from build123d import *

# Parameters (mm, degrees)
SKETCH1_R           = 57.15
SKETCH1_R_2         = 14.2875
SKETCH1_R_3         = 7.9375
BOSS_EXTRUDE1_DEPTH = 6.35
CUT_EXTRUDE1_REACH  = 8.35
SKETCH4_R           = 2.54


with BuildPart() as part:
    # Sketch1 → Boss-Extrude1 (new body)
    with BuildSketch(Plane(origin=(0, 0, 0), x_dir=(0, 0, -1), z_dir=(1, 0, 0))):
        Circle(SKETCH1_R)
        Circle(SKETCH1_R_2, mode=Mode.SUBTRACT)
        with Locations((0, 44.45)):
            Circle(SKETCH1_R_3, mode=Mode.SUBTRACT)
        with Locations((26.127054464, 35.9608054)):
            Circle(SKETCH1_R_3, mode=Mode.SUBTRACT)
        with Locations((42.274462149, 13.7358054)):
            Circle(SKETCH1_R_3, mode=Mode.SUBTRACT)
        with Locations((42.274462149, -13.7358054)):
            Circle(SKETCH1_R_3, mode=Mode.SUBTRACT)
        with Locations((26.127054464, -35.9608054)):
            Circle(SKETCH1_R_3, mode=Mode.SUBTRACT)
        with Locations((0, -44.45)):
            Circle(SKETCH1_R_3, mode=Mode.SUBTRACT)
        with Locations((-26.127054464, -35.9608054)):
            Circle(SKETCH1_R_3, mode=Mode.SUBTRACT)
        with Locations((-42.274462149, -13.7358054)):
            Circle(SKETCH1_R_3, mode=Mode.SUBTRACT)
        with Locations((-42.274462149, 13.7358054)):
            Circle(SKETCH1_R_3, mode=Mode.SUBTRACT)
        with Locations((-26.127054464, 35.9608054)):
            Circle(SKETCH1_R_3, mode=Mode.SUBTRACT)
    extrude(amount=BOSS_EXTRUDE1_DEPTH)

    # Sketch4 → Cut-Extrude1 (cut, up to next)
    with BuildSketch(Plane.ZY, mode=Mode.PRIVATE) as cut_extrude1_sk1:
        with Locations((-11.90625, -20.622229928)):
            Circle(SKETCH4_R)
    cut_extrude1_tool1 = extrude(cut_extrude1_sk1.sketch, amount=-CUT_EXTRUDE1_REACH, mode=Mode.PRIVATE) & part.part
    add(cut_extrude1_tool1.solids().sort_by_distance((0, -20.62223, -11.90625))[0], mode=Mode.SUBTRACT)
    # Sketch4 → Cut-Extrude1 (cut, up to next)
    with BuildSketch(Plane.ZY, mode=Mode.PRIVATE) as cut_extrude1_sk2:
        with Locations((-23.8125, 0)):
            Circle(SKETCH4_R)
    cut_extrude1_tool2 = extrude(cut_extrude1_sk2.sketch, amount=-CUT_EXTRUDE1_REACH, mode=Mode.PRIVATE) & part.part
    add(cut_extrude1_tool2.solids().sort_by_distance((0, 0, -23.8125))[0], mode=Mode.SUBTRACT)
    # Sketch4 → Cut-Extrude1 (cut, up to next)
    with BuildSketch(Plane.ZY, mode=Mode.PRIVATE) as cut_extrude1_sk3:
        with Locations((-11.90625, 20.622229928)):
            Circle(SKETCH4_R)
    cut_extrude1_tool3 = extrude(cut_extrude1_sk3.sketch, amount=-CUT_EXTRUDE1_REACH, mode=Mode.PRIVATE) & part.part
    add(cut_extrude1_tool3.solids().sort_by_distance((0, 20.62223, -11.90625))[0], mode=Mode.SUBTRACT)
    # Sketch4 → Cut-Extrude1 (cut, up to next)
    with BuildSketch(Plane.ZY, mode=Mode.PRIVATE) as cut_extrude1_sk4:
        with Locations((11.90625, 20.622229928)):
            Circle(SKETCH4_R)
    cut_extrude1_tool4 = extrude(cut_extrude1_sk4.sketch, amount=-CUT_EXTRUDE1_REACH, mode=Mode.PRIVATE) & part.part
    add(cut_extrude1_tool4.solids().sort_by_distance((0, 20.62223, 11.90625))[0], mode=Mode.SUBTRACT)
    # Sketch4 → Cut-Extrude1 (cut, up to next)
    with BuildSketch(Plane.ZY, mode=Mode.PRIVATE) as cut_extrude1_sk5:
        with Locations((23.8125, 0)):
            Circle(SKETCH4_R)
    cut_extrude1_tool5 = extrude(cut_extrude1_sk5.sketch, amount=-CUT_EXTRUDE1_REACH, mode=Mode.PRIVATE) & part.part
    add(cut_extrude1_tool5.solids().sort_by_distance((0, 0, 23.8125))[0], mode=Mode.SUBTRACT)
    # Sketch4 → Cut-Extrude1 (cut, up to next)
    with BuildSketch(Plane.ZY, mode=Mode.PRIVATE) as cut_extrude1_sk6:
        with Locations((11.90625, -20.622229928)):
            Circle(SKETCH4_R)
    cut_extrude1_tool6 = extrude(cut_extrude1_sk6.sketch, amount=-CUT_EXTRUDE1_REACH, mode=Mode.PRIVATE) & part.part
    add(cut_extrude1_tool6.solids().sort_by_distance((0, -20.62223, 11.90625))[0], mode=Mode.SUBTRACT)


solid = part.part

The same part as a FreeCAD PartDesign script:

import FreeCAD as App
import Part
import Sketcher

V = App.Vector
Q = App.Units.Quantity

doc = App.newDocument("Part")
body = doc.addObject("PartDesign::Body", "Body")

# Sketch on YZ plane
sketch1 = body.newObject("Sketcher::SketchObject", "Sketch")
sketch1.AttachmentSupport = (doc.getObject("YZ_Plane"), [""])
sketch1.MapMode = "FlatFace"
sketch1.addGeometry([
    Part.Circle(V(0, 0, 0), V(0, 0, 1), 57.15),  # 0
    Part.Circle(V(-35.960805, 26.127054, 0), V(0, 0, 1), 7.9375),  # 1
    Part.Circle(V(-13.735805, 42.274462, 0), V(0, 0, 1), 7.9375),  # 2
    Part.Circle(V(-44.45, 0, 0), V(0, 0, 1), 7.9375),  # 3
    Part.Circle(V(-35.960805, -26.127054, 0), V(0, 0, 1), 7.9375),  # 4
    Part.Circle(V(-13.735805, -42.274462, 0), V(0, 0, 1), 7.9375),  # 5
    Part.Circle(V(13.735805, 42.274462, 0), V(0, 0, 1), 7.9375),  # 6
    Part.Circle(V(35.960805, 26.127054, 0), V(0, 0, 1), 7.9375),  # 7
    Part.Circle(V(0, 0, 0), V(0, 0, 1), 14.2875),  # 8
    Part.Circle(V(13.735805, -42.274462, 0), V(0, 0, 1), 7.9375),  # 9
    Part.Circle(V(44.45, 0, 0), V(0, 0, 1), 7.9375),  # 10
    Part.Circle(V(35.960805, -26.127054, 0), V(0, 0, 1), 7.9375),  # 11
], False)
sketch1.addConstraint([
    Sketcher.Constraint("Coincident", 0, 3, -1, 1),
    Sketcher.Constraint("Coincident", 8, 3, -1, 1),
    Sketcher.Constraint("Equal", 1, 2),
    Sketcher.Constraint("Equal", 2, 3),
    Sketcher.Constraint("Equal", 3, 4),
    Sketcher.Constraint("Equal", 4, 5),
    Sketcher.Constraint("Equal", 5, 6),
    Sketcher.Constraint("Equal", 6, 7),
    Sketcher.Constraint("Equal", 7, 9),
    Sketcher.Constraint("Equal", 9, 10),
    Sketcher.Constraint("Equal", 10, 11),
    Sketcher.Constraint("Symmetric", 5, 3, 6, 3, -1, 1),
    Sketcher.Constraint("Symmetric", 4, 3, 7, 3, -1, 1),
    Sketcher.Constraint("Symmetric", 2, 3, 9, 3, -1, 1),
    Sketcher.Constraint("Symmetric", 3, 3, 10, 3, -1, 1),
    Sketcher.Constraint("Symmetric", 1, 3, 11, 3, -1, 1),
    Sketcher.Constraint("Symmetric", 2, 3, 6, 3, -2),
    Sketcher.Constraint("Symmetric", 1, 3, 7, 3, -2),
    Sketcher.Constraint("PointOnObject", 3, 3, -1),
    Sketcher.Constraint("Diameter", 0, Q("4.5 in")),
    Sketcher.Constraint("Diameter", 1, Q("0.625 in")),
    Sketcher.Constraint("Diameter", 8, Q("1.125 in")),
    Sketcher.Constraint("DistanceX", 3, 3, -1, 1, Q("1.75 in")),
    Sketcher.Constraint("DistanceX", 1, 3, 2, 3, Q("0.875 in")),
    Sketcher.Constraint("DistanceY", 4, 3, 1, 3, Q("52.254109 mm")),
    Sketcher.Constraint("DistanceX", 2, 3, 6, 3, Q("27.471611 mm")),
    Sketcher.Constraint("DistanceY", -1, 1, 2, 3, Q("42.274462 mm")),
])
pad1 = body.newObject("PartDesign::Pad", "Pad")
pad1.Profile = sketch1
pad1.Length = Q("0.25 in")

# Sketch on YZ plane
sketch2 = body.newObject("Sketcher::SketchObject", "Sketch001")
sketch2.AttachmentSupport = (doc.getObject("YZ_Plane"), [""])
sketch2.MapMode = "FlatFace"
sketch2.addGeometry(Part.Circle(V(-20.62223, -11.90625, 0), V(0, 0, 1), 2.54), False)
sketch2.addConstraint([
    Sketcher.Constraint("Diameter", 0, Q("0.2 in")),
    Sketcher.Constraint("DistanceY", 0, 3, -1, 1, Q("0.46875 in")),
    Sketcher.Constraint("DistanceX", 0, 3, -1, 1, Q("20.62223 mm")),
])
pocket1 = body.newObject("PartDesign::Pocket", "Pocket")
pocket1.Profile = sketch2
pocket1.Type = "UpToFirst"
pocket1.Reversed = True

# Sketch on YZ plane
sketch3 = body.newObject("Sketcher::SketchObject", "Sketch002")
sketch3.AttachmentSupport = (doc.getObject("YZ_Plane"), [""])
sketch3.MapMode = "FlatFace"
sketch3.addGeometry(Part.Circle(V(0, -23.8125, 0), V(0, 0, 1), 2.54), False)
sketch3.addConstraint([
    Sketcher.Constraint("PointOnObject", 0, 3, -2),
    Sketcher.Constraint("Diameter", 0, Q("0.2 in")),
    Sketcher.Constraint("DistanceY", 0, 3, -1, 1, Q("0.9375 in")),
])
pocket2 = body.newObject("PartDesign::Pocket", "Pocket001")
pocket2.Profile = sketch3
pocket2.Type = "UpToFirst"
pocket2.Reversed = True

# Sketch on YZ plane
sketch4 = body.newObject("Sketcher::SketchObject", "Sketch003")
sketch4.AttachmentSupport = (doc.getObject("YZ_Plane"), [""])
sketch4.MapMode = "FlatFace"
sketch4.addGeometry(Part.Circle(V(20.62223, -11.90625, 0), V(0, 0, 1), 2.54), False)
sketch4.addConstraint([
    Sketcher.Constraint("Diameter", 0, Q("0.2 in")),
    Sketcher.Constraint("DistanceY", 0, 3, -1, 1, Q("0.46875 in")),
    Sketcher.Constraint("DistanceX", -1, 1, 0, 3, Q("20.62223 mm")),
])
pocket3 = body.newObject("PartDesign::Pocket", "Pocket002")
pocket3.Profile = sketch4
pocket3.Type = "UpToFirst"
pocket3.Reversed = True

# Sketch on YZ plane
sketch5 = body.newObject("Sketcher::SketchObject", "Sketch004")
sketch5.AttachmentSupport = (doc.getObject("YZ_Plane"), [""])
sketch5.MapMode = "FlatFace"
sketch5.addGeometry(Part.Circle(V(20.62223, 11.90625, 0), V(0, 0, 1), 2.54), False)
sketch5.addConstraint([
    Sketcher.Constraint("Diameter", 0, Q("0.2 in")),
    Sketcher.Constraint("DistanceY", -1, 1, 0, 3, Q("0.46875 in")),
    Sketcher.Constraint("DistanceX", -1, 1, 0, 3, Q("20.62223 mm")),
])
pocket4 = body.newObject("PartDesign::Pocket", "Pocket003")
pocket4.Profile = sketch5
pocket4.Type = "UpToFirst"
pocket4.Reversed = True

# Sketch on YZ plane
sketch6 = body.newObject("Sketcher::SketchObject", "Sketch005")
sketch6.AttachmentSupport = (doc.getObject("YZ_Plane"), [""])
sketch6.MapMode = "FlatFace"
sketch6.addGeometry(Part.Circle(V(0, 23.8125, 0), V(0, 0, 1), 2.54), False)
sketch6.addConstraint([
    Sketcher.Constraint("PointOnObject", 0, 3, -2),
    Sketcher.Constraint("Diameter", 0, Q("0.2 in")),
    Sketcher.Constraint("DistanceY", -1, 1, 0, 3, Q("0.9375 in")),
])
pocket5 = body.newObject("PartDesign::Pocket", "Pocket004")
pocket5.Profile = sketch6
pocket5.Type = "UpToFirst"
pocket5.Reversed = True

# Sketch on YZ plane
sketch7 = body.newObject("Sketcher::SketchObject", "Sketch006")
sketch7.AttachmentSupport = (doc.getObject("YZ_Plane"), [""])
sketch7.MapMode = "FlatFace"
sketch7.addGeometry(Part.Circle(V(-20.62223, 11.90625, 0), V(0, 0, 1), 2.54), False)
sketch7.addConstraint([
    Sketcher.Constraint("Diameter", 0, Q("0.2 in")),
    Sketcher.Constraint("DistanceY", -1, 1, 0, 3, Q("0.46875 in")),
    Sketcher.Constraint("DistanceX", 0, 3, -1, 1, Q("20.62223 mm")),
])
pocket6 = body.newObject("PartDesign::Pocket", "Pocket005")
pocket6.Profile = sketch7
pocket6.Type = "UpToFirst"
pocket6.Reversed = True

doc.recompute()
